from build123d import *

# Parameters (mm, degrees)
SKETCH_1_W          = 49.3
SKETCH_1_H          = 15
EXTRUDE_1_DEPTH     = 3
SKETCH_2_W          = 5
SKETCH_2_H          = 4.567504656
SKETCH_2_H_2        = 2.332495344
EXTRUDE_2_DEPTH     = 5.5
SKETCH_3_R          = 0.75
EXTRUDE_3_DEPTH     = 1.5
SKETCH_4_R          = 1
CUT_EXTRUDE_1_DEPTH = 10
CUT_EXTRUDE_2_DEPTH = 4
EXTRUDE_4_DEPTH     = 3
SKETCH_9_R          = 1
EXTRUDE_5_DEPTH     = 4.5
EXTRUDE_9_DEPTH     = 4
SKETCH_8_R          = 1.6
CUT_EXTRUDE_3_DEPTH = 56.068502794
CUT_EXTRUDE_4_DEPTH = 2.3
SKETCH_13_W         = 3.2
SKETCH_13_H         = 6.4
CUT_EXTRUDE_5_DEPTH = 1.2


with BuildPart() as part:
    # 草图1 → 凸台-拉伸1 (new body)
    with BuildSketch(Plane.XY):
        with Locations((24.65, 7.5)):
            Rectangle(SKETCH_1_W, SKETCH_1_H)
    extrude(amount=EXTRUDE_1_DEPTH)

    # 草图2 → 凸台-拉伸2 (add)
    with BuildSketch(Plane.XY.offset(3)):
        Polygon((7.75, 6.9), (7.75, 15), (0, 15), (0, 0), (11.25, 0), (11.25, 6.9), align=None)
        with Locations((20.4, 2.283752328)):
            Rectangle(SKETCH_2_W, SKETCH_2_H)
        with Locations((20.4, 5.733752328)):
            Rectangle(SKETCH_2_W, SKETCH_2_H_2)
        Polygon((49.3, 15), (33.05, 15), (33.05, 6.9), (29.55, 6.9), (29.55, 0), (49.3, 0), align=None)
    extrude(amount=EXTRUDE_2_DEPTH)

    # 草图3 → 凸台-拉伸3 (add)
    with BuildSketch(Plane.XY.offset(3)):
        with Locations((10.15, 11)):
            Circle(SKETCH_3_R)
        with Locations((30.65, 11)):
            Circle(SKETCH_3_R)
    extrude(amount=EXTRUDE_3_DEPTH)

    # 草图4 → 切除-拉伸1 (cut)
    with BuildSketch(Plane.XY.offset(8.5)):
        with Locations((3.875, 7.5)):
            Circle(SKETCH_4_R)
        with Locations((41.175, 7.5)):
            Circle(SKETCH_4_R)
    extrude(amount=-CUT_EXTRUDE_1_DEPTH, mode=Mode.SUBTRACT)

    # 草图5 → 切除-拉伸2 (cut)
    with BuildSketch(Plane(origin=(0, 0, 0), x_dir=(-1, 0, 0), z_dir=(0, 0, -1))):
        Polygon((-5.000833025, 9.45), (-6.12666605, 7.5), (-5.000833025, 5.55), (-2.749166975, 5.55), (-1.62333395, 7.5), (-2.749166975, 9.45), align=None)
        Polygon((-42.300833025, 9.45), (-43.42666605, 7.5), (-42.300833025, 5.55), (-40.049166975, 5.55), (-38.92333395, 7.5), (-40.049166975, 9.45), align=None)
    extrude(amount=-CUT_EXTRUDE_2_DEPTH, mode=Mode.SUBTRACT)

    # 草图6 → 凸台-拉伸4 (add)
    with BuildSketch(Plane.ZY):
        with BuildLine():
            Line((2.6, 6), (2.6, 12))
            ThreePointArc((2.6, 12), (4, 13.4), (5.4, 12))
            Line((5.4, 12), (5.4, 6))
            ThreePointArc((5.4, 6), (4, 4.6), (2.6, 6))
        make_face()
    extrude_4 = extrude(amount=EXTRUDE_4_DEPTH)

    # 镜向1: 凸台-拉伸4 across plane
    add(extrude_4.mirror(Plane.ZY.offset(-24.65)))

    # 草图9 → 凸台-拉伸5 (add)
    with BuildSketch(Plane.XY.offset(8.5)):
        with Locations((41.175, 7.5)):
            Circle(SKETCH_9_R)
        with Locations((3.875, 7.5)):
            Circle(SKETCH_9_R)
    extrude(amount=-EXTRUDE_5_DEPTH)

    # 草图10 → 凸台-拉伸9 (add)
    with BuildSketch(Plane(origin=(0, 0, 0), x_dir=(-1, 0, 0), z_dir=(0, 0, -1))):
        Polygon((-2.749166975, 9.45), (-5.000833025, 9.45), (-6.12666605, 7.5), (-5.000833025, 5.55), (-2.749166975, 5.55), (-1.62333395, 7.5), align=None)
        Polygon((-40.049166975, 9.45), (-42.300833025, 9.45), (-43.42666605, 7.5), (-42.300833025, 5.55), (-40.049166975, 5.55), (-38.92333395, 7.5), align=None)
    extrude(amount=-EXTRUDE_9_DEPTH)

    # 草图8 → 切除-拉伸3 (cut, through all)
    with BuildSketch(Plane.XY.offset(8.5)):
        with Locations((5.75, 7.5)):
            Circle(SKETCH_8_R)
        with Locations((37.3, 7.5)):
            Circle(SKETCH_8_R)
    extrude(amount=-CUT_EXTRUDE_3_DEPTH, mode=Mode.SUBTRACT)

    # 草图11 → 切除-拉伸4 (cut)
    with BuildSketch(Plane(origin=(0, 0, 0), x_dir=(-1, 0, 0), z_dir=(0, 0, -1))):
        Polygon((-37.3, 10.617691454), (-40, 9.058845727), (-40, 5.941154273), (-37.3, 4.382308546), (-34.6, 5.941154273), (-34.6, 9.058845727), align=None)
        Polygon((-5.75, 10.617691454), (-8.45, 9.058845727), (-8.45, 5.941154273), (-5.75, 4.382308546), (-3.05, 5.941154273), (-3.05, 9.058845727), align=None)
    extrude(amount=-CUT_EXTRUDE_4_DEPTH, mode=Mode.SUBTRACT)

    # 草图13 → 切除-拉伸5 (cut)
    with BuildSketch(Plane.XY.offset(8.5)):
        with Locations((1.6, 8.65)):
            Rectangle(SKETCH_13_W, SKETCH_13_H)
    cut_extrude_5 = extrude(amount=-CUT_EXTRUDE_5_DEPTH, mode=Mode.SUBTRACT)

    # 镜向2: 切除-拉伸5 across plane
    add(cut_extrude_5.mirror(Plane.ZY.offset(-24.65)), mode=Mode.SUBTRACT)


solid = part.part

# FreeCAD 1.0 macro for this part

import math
import FreeCAD as App
import Part
import Sketcher
from FreeCAD import Vector
Q = App.Units.Quantity


def add_polygon(sketch, points):
    """Adds a closed chain of lines whose ends are joined by coincident constraints."""
    first, n = sketch.GeometryCount, len(points)
    for a, b in zip(points, points[1:] + points[:1]):
        sketch.addGeometry(Part.LineSegment(App.Vector(*a, 0), App.Vector(*b, 0)), False)
    for i in range(n):
        sketch.addConstraint(Sketcher.Constraint("Coincident", first + i, 2, first + (i + 1) % n, 1))

doc = App.newDocument("Part")
body = doc.addObject("PartDesign::Body", "Body")

# Sketch on XY plane
sketch1 = body.newObject("Sketcher::SketchObject", "Sketch")
sketch1.AttachmentSupport = (doc.getObject("XY_Plane"), [""])
sketch1.MapMode = "FlatFace"
add_polygon(sketch1, [(0, 15), (0, 0), (49, 0), (49, 15)])  # lines 0-3
sketch1.addConstraint([
    Sketcher.Constraint("Vertical", 0),
    Sketcher.Constraint("Horizontal", 1),
    Sketcher.Constraint("Vertical", 2),
    Sketcher.Constraint("Horizontal", 3),
    Sketcher.Constraint("Coincident", 0, 2, -1, 1),
    Sketcher.Constraint("DistanceY", 0, 2, 0, 1, Q("15 mm")),
    Sketcher.Constraint("DistanceX", 1, 1, 1, 2, Q("49.3 mm")),
])
pad1 = body.newObject("PartDesign::Pad", "Pad")
pad1.Profile = sketch1
pad1.Length = 3

# Sketch on XY plane
sketch2 = body.newObject("Sketcher::SketchObject", "Sketch001")
sketch2.AttachmentSupport = (doc.getObject("XY_Plane"), [""])
sketch2.MapMode = "FlatFace"
sketch2.AttachmentOffset = App.Placement(Vector(0, 0, 3), App.Rotation())
add_polygon(sketch2, [(7.8, 6.9), (7.8, 15), (0, 15), (0, 0), (11.2, 0), (11.2, 6.9)])  # lines 0-5
add_polygon(sketch2, [(17.9, 0), (22.9, 0), (22.9, 6.9), (17.9, 6.9)])  # lines 6-9
add_polygon(sketch2, [(49.3, 15), (33, 15), (33, 6.9), (29.6, 6.9), (29.6, 0), (49.3, 0)])  # lines 10-15
sketch2.addConstraint([
    Sketcher.Constraint("Vertical", 0),
    Sketcher.Constraint("Horizontal", 1),
    Sketcher.Constraint("Vertical", 2),
    Sketcher.Constraint("Horizontal", 3),
    Sketcher.Constraint("Vertical", 4),
    Sketcher.Constraint("Horizontal", 5),
    Sketcher.Constraint("Horizontal", 6),
    Sketcher.Constraint("Vertical", 7),
    Sketcher.Constraint("Horizontal", 8),
    Sketcher.Constraint("Vertical", 9),
    Sketcher.Constraint("Horizontal", 10),
    Sketcher.Constraint("Vertical", 11),
    Sketcher.Constraint("Horizontal", 12),
    Sketcher.Constraint("Vertical", 13),
    Sketcher.Constraint("Horizontal", 14),
    Sketcher.Constraint("Vertical", 15),
    Sketcher.Constraint("Coincident", 2, 2, -1, 1),
    Sketcher.Constraint("PointOnObject", 6, 2, -1),
    Sketcher.Constraint("PointOnObject", 13, 2, -1),
    Sketcher.Constraint("Horizontal", 5, 2, 7, 2),
    Sketcher.Constraint("Horizontal", 1, 2, 10, 2),
    Sketcher.Constraint("Horizontal", 8, 2, 11, 2),
    Sketcher.Constraint("Equal", 5, 12),
    Sketcher.Constraint("DistanceX", 6, 1, 6, 2, Q("5 mm")),
    Sketcher.Constraint("DistanceY", 2, 2, 2, 1, Q("15 mm")),
    Sketcher.Constraint("DistanceX", 5, 2, 5, 1, Q("3.5 mm")),
    Sketcher.Constraint("DistanceY", 0, 1, 0, 2, Q("8.1 mm")),
    Sketcher.Constraint("DistanceX", 1, 2, 1, 1, Q("7.75 mm")),
    Sketcher.Constraint("DistanceX", 10, 2, 10, 1, Q("16.25 mm")),
    Sketcher.Constraint("DistanceX", -1, 1, 6, 2, Q("22.9 mm")),
    Sketcher.Constraint("DistanceX", -1, 1, 14, 2, Q("49.3 mm")),
])
pad2 = body.newObject("PartDesign::Pad", "Pad001")
pad2.Profile = sketch2
pad2.Length = 5.5

# Sketch on XY plane
sketch3 = body.newObject("Sketcher::SketchObject", "Sketch002")
sketch3.AttachmentSupport = (doc.getObject("XY_Plane"), [""])
sketch3.MapMode = "FlatFace"
sketch3.AttachmentOffset = App.Placement(Vector(0, 0, 3), App.Rotation())
sketch3.addGeometry([
    Part.Circle(Vector(10.2, 11, 0), Vector(0, 0, 1), 0.8),
    Part.Circle(Vector(30.6, 11, 0), Vector(0, 0, 1), 0.8),
], False)
sketch3.addConstraint([
    Sketcher.Constraint("Equal", 0, 1),
    Sketcher.Constraint("Horizontal", 0, 3, 1, 3),
    Sketcher.Constraint("Diameter", 0, Q("1.5 mm")),
    Sketcher.Constraint("DistanceY", -1, 1, 0, 3, Q("11 mm")),
    Sketcher.Constraint("DistanceX", 0, 3, 1, 3, Q("20.5 mm")),
    Sketcher.Constraint("DistanceX", -1, 1, 0, 3, Q("10.15 mm")),
])
pad3 = body.newObject("PartDesign::Pad", "Pad002")
pad3.Profile = sketch3
pad3.Length = 1.5

# Sketch on XY plane
sketch4 = body.newObject("Sketcher::SketchObject", "Sketch003")
sketch4.AttachmentSupport = (doc.getObject("XY_Plane"), [""])
sketch4.MapMode = "FlatFace"
sketch4.AttachmentOffset = App.Placement(Vector(0, 0, 8.5), App.Rotation())
sketch4.addGeometry([
    Part.Circle(Vector(3.9, 7.5, 0), Vector(0, 0, 1), 1),
    Part.Circle(Vector(41.2, 7.5, 0), Vector(0, 0, 1), 1),
], False)
sketch4.addConstraint([
    Sketcher.Constraint("Equal", 0, 1),
    Sketcher.Constraint("Horizontal", 0, 3, 1, 3),
    Sketcher.Constraint("Diameter", 0, Q("2 mm")),
    Sketcher.Constraint("DistanceY", -1, 1, 0, 3, Q("7.5 mm")),
    Sketcher.Constraint("DistanceX", 0, 3, 1, 3, Q("37.3 mm")),
    Sketcher.Constraint("DistanceX", -1, 1, 0, 3, Q("3.875 mm")),
])
pocket1 = body.newObject("PartDesign::Pocket", "Pocket")
pocket1.Profile = sketch4
pocket1.Length = 10

# Sketch on XY plane
sketch5 = body.newObject("Sketcher::SketchObject", "Sketch004")
sketch5.AttachmentSupport = (doc.getObject("XY_Plane"), [""])
sketch5.MapMode = "FlatFace"
add_polygon(sketch5, [(5, 9.4), (6.1, 7.5), (5, 5.5), (2.7, 5.5), (1.6, 7.5), (2.7, 9.4)])  # lines 0-5
add_polygon(sketch5, [(42.3, 9.4), (43.4, 7.5), (42.3, 5.5), (40, 5.5), (38.9, 7.5), (40, 9.4)])  # lines 6-11
sketch5.addConstraint([
    Sketcher.Constraint("Horizontal", 2),
    Sketcher.Constraint("Horizontal", 5),
    Sketcher.Constraint("Horizontal", 8),
    Sketcher.Constraint("Horizontal", 11),
    Sketcher.Constraint("Parallel", 0, 3),
    Sketcher.Constraint("Parallel", 1, 4),
    Sketcher.Constraint("Parallel", 3, 6),
    Sketcher.Constraint("Parallel", 4, 7),
    Sketcher.Constraint("Parallel", 6, 9),
    Sketcher.Constraint("Parallel", 7, 10),
    Sketcher.Constraint("Horizontal", 0, 2, 3, 2),
    Sketcher.Constraint("Horizontal", 3, 2, 6, 2),
    Sketcher.Constraint("Horizontal", 2, 2, 7, 2),
    Sketcher.Constraint("Horizontal", 6, 2, 9, 2),
    Sketcher.Constraint("Horizontal", 5, 2, 10, 2),
    Sketcher.Constraint("Vertical", 2, 2, 4, 2),
    Sketcher.Constraint("Vertical", 1, 2, 5, 2),
    Sketcher.Constraint("Equal", 5, 8),
    Sketcher.Constraint("Angle", 0, Q("-60 deg")),
    Sketcher.Constraint("DistanceY", -1, 1, 0, 2, Q("7.5 mm")),
    Sketcher.Constraint("DistanceY", 2, 2, 4, 2, Q("3.9 mm")),
    Sketcher.Constraint("DistanceX", 0, 2, 6, 2, Q("37.3 mm")),
    Sketcher.Constraint("DistanceX", 2, 2, 0, 2, Q("3.377499 mm")),
    Sketcher.Constraint("DistanceX", -1, 1, 0, 2, Q("6.126666 mm")),
])
pocket2 = body.newObject("PartDesign::Pocket", "Pocket001")
pocket2.Profile = sketch5
pocket2.Length = 4
pocket2.Reversed = True

# Sketch on YZ plane
sketch6 = body.newObject("Sketcher::SketchObject", "Sketch005")
sketch6.AttachmentSupport = (doc.getObject("YZ_Plane"), [""])
sketch6.MapMode = "FlatFace"
sketch6.addGeometry([
    Part.LineSegment(Vector(12, 2.6, 0), Vector(6, 2.6, 0)),
    Part.ArcOfCircle(Part.Circle(Vector(6, 4, 0), Vector(0, 0, 1), 1.4), math.radians(90), math.radians(270)),
    Part.LineSegment(Vector(6, 5.4, 0), Vector(12, 5.4, 0)),
    Part.ArcOfCircle(Part.Circle(Vector(12, 4, 0), Vector(0, 0, 1), 1.4), math.radians(-90), math.radians(90)),
], False)
sketch6.addConstraint([
    Sketcher.Constraint("Tangent", 0, 2, 1, 2),
    Sketcher.Constraint("Tangent", 1, 1, 2, 1),
    Sketcher.Constraint("Tangent", 2, 2, 3, 2),
    Sketcher.Constraint("Tangent", 3, 1, 0, 1),
    Sketcher.Constraint("Horizontal", 0),
    Sketcher.Constraint("Horizontal", 2),
    Sketcher.Constraint("Radius", 1, Q("1.4 mm")),
    Sketcher.Constraint("DistanceX", 0, 2, 0, 1, Q("6 mm")),
    Sketcher.Constraint("DistanceX", -1, 1, 1, 3, Q("6 mm")),
    Sketcher.Constraint("DistanceY", -1, 1, 1, 3, Q("4 mm")),
])
pad4 = body.newObject("PartDesign::Pad", "Pad003")
pad4.Profile = sketch6
pad4.Length = 3
pad4.Reversed = True
doc.recompute()

datumplane = body.newObject("PartDesign::Plane", "DatumPlane")
datumplane.AttachmentSupport = (doc.getObject("YZ_Plane"), [""])
datumplane.MapMode = "FlatFace"
datumplane.AttachmentOffset = App.Placement(Vector(0, 0, 24.65), App.Rotation())
mirrored = body.newObject("PartDesign::Mirrored", "Mirrored")
mirrored.Originals = [pad4]
mirrored.MirrorPlane = (datumplane, [""])
body.Tip = mirrored

# Sketch on XY plane
sketch7 = body.newObject("Sketcher::SketchObject", "Sketch006")
sketch7.AttachmentSupport = (doc.getObject("XY_Plane"), [""])
sketch7.MapMode = "FlatFace"
sketch7.AttachmentOffset = App.Placement(Vector(0, 0, 8.5), App.Rotation())
sketch7.addGeometry([
    Part.Circle(Vector(41.2, 7.5, 0), Vector(0, 0, 1), 1),
    Part.Circle(Vector(3.9, 7.5, 0), Vector(0, 0, 1), 1),
], False)
sketch7.addConstraint([
    Sketcher.Constraint("Equal", 0, 1),
    Sketcher.Constraint("Horizontal", 0, 3, 1, 3),
    Sketcher.Constraint("Diameter", 0, Q("2 mm")),
    Sketcher.Constraint("DistanceY", -1, 1, 0, 3, Q("7.5 mm")),
    Sketcher.Constraint("DistanceX", 1, 3, 0, 3, Q("37.3 mm")),
    Sketcher.Constraint("DistanceX", -1, 1, 0, 3, Q("41.175 mm")),
])
pad5 = body.newObject("PartDesign::Pad", "Pad004")
pad5.Profile = sketch7
pad5.Length = 4.5
pad5.Reversed = True

# Sketch on XY plane
sketch8 = body.newObject("Sketcher::SketchObject", "Sketch007")
sketch8.AttachmentSupport = (doc.getObject("XY_Plane"), [""])
sketch8.MapMode = "FlatFace"
add_polygon(sketch8, [(2.7, 9.4), (5, 9.4), (6.1, 7.5), (5, 5.5), (2.7, 5.5), (1.6, 7.5)])  # lines 0-5
add_polygon(sketch8, [(40, 9.4), (42.3, 9.4), (43.4, 7.5), (42.3, 5.5), (40, 5.5), (38.9, 7.5)])  # lines 6-11
sketch8.addConstraint([
    Sketcher.Constraint("Horizontal", 0),
    Sketcher.Constraint("Horizontal", 3),
    Sketcher.Constraint("Horizontal", 6),
    Sketcher.Constraint("Horizontal", 9),
    Sketcher.Constraint("Parallel", 1, 4),
    Sketcher.Constraint("Parallel", 2, 5),
    Sketcher.Constraint("Parallel", 4, 7),
    Sketcher.Constraint("Parallel", 5, 8),
    Sketcher.Constraint("Parallel", 7, 10),
    Sketcher.Constraint("Parallel", 8, 11),
    Sketcher.Constraint("Horizontal", 1, 2, 4, 2),
    Sketcher.Constraint("Horizontal", 5, 2, 6, 2),
    Sketcher.Constraint("Horizontal", 4, 2, 7, 2),
    Sketcher.Constraint("Horizontal", 3, 2, 8, 2),
    Sketcher.Constraint("Horizontal", 7, 2, 10, 2),
    Sketcher.Constraint("Vertical", 0, 2, 2, 2),
    Sketcher.Constraint("Vertical", 3, 2, 5, 2),
    Sketcher.Constraint("Equal", 3, 6),
    Sketcher.Constraint("Angle", 1, Q("-60 deg")),
    Sketcher.Constraint("DistanceY", -1, 1, 1, 2, Q("7.5 mm")),
    Sketcher.Constraint("DistanceY", 2, 2, 0, 2, Q("3.9 mm")),
    Sketcher.Constraint("DistanceX", 0, 2, 6, 2, Q("37.3 mm")),
    Sketcher.Constraint("DistanceX", 3, 2, 1, 2, Q("3.377499 mm")),
    Sketcher.Constraint("DistanceX", -1, 1, 0, 2, Q("5.000833 mm")),
])
pad6 = body.newObject("PartDesign::Pad", "Pad005")
pad6.Profile = sketch8
pad6.Length = 4

# Sketch on XY plane
sketch9 = body.newObject("Sketcher::SketchObject", "Sketch008")
sketch9.AttachmentSupport = (doc.getObject("XY_Plane"), [""])
sketch9.MapMode = "FlatFace"
sketch9.AttachmentOffset = App.Placement(Vector(0, 0, 8.5), App.Rotation())
sketch9.addGeometry([
    Part.Circle(Vector(5.8, 7.5, 0), Vector(0, 0, 1), 1.6),
    Part.Circle(Vector(37.3, 7.5, 0), Vector(0, 0, 1), 1.6),
], False)
sketch9.addConstraint([
    Sketcher.Constraint("Equal", 0, 1),
    Sketcher.Constraint("Horizontal", 0, 3, 1, 3),
    Sketcher.Constraint("Diameter", 0, Q("3.2 mm")),
    Sketcher.Constraint("DistanceY", -1, 1, 0, 3, Q("7.5 mm")),
    Sketcher.Constraint("DistanceX", -1, 1, 1, 3, Q("37.3 mm")),
    Sketcher.Constraint("DistanceX", -1, 1, 0, 3, Q("5.75 mm")),
])
pocket3 = body.newObject("PartDesign::Pocket", "Pocket002")
pocket3.Profile = sketch9
pocket3.Type = "ThroughAll"

# Sketch on XY plane
sketch10 = body.newObject("Sketcher::SketchObject", "Sketch009")
sketch10.AttachmentSupport = (doc.getObject("XY_Plane"), [""])
sketch10.MapMode = "FlatFace"
add_polygon(sketch10, [(37.3, 10.6), (40, 9.1), (40, 5.9), (37.3, 4.4), (34.6, 5.9), (34.6, 9.1)])  # lines 0-5
add_polygon(sketch10, [(5.8, 10.6), (8.4, 9.1), (8.4, 5.9), (5.8, 4.4), (3, 5.9), (3, 9.1)])  # lines 6-11
sketch10.addConstraint([
    Sketcher.Constraint("Vertical", 1),
    Sketcher.Constraint("Vertical", 4),
    Sketcher.Constraint("Vertical", 7),
    Sketcher.Constraint("Vertical", 10),
    Sketcher.Constraint("Parallel", 0, 3),
    Sketcher.Constraint("Parallel", 2, 5),
    Sketcher.Constraint("Parallel", 3, 6),
    Sketcher.Constraint("Parallel", 5, 8),
    Sketcher.Constraint("Parallel", 6, 9),
    Sketcher.Constraint("Parallel", 8, 11),
    Sketcher.Constraint("Horizontal", 1, 2, 3, 2),
    Sketcher.Constraint("Horizontal", 0, 2, 4, 2),
    Sketcher.Constraint("Horizontal", 4, 2, 6, 2),
    Sketcher.Constraint("Horizontal", 3, 2, 7, 2),
    Sketcher.Constraint("Horizontal", 2, 2, 8, 2),
    Sketcher.Constraint("Horizontal", 7, 2, 9, 2),
    Sketcher.Constraint("Horizontal", 6, 2, 10, 2),
    Sketcher.Constraint("Vertical", 2, 2, 5, 2),
    Sketcher.Constraint("Angle", 0, Q("-30 deg")),
    Sketcher.Constraint("DistanceX", -1, 1, 0, 2, Q("40 mm")),
    Sketcher.Constraint("DistanceX", -1, 1, 2, 2, Q("37.3 mm")),
    Sketcher.Constraint("DistanceX", -1, 1, 6, 2, Q("8.45 mm")),
    Sketcher.Constraint("DistanceY", 1, 2, 1, 1, Q("3.117691 mm")),
    Sketcher.Constraint("DistanceY", -1, 1, 2, 2, Q("4.382309 mm")),
])
pocket4 = body.newObject("PartDesign::Pocket", "Pocket003")
pocket4.Profile = sketch10
pocket4.Length = 2.3
pocket4.Reversed = True

# Sketch on XY plane
sketch11 = body.newObject("Sketcher::SketchObject", "Sketch010")
sketch11.AttachmentSupport = (doc.getObject("XY_Plane"), [""])
sketch11.MapMode = "FlatFace"
sketch11.AttachmentOffset = App.Placement(Vector(0, 0, 8.5), App.Rotation())
add_polygon(sketch11, [(0, 11.8), (0, 5.5), (3.2, 5.5), (3.2, 11.8)])  # lines 0-3
sketch11.addConstraint([
    Sketcher.Constraint("Vertical", 0),
    Sketcher.Constraint("Horizontal", 1),
    Sketcher.Constraint("Vertical", 2),
    Sketcher.Constraint("Horizontal", 3),
    Sketcher.Constraint("PointOnObject", 0, 2, -2),
    Sketcher.Constraint("DistanceX", 1, 1, 1, 2, Q("3.2 mm")),
    Sketcher.Constraint("DistanceY", 0, 2, 0, 1, Q("6.4 mm")),
    Sketcher.Constraint("DistanceY", -1, 1, 0, 2, Q("5.45 mm")),
])
pocket5 = body.newObject("PartDesign::Pocket", "Pocket004")
pocket5.Profile = sketch11
pocket5.Length = 1.2
doc.recompute()

datumplane2 = body.newObject("PartDesign::Plane", "DatumPlane001")
datumplane2.AttachmentSupport = (doc.getObject("YZ_Plane"), [""])
datumplane2.MapMode = "FlatFace"
datumplane2.AttachmentOffset = App.Placement(Vector(0, 0, 24.65), App.Rotation())
mirrored2 = body.newObject("PartDesign::Mirrored", "Mirrored001")
mirrored2.Originals = [pocket5]
mirrored2.MirrorPlane = (datumplane2, [""])
body.Tip = mirrored2

doc.recompute()
